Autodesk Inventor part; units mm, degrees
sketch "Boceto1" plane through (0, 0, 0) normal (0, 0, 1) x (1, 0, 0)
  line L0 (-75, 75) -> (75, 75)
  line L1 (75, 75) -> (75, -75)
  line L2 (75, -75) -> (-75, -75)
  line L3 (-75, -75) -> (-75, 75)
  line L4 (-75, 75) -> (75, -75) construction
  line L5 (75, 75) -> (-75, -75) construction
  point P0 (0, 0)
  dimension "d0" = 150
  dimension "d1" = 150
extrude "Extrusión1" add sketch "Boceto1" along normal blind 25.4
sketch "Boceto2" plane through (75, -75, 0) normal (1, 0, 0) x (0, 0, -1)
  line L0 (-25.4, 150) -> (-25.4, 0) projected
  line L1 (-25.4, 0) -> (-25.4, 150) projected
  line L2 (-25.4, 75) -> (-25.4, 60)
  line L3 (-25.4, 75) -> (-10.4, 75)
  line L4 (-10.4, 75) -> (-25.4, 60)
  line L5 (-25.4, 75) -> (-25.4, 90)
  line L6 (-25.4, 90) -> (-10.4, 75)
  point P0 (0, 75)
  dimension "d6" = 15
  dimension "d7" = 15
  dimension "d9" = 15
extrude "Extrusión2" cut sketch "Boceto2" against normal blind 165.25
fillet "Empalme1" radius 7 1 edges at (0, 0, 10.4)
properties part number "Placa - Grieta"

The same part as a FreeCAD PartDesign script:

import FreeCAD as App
import Part
import Sketcher
from FreeCAD import Vector
Q = App.Units.Quantity


def edges_at(feature, points):
    """Names of the edges that pass closest to the given points."""
    edges = feature.Shape.Edges
    near = lambda p: min(range(len(edges)), key=lambda i: edges[i].distToShape(Part.Vertex(*p))[0])
    return sorted({f"Edge{near(p) + 1}" for p in points})

doc = App.newDocument("Part")
body = doc.addObject("PartDesign::Body", "Body")

# Sketch on XY plane
sketch1 = body.newObject("Sketcher::SketchObject", "Sketch")
sketch1.AttachmentSupport = (doc.getObject("XY_Plane"), [""])
sketch1.MapMode = "FlatFace"
sketch1.addGeometry([
    Part.LineSegment(Vector(75, 75, 0), Vector(-75, 75, 0)),
    Part.LineSegment(Vector(-75, 75, 0), Vector(-75, -75, 0)),
    Part.LineSegment(Vector(-75, -75, 0), Vector(75, -75, 0)),
    Part.LineSegment(Vector(75, -75, 0), Vector(75, 75, 0)),
], False)
sketch1.addConstraint([
    Sketcher.Constraint("Coincident", 0, 2, 1, 1),
    Sketcher.Constraint("Coincident", 1, 2, 2, 1),
    Sketcher.Constraint("Coincident", 2, 2, 3, 1),
    Sketcher.Constraint("Coincident", 3, 2, 0, 1),
    Sketcher.Constraint("Horizontal", 0),
    Sketcher.Constraint("Vertical", 1),
    Sketcher.Constraint("Horizontal", 2),
    Sketcher.Constraint("Vertical", 3),
    Sketcher.Constraint("Symmetric", 0, 2, 2, 2, -1, 1),
    Sketcher.Constraint("Equal", 2, 1),
    Sketcher.Constraint("DistanceX", 0, 2, 0, 1, Q("5.9055 in")),
])
pad1 = body.newObject("PartDesign::Pad", "Pad")
pad1.Profile = sketch1
pad1.Length = Q("1 in")

# Sketch on YZ plane
sketch2 = body.newObject("Sketcher::SketchObject", "Sketch001")
sketch2.AttachmentSupport = (doc.getObject("YZ_Plane"), [""])
sketch2.MapMode = "FlatFace"
sketch2.AttachmentOffset = App.Placement(Vector(0, 0, 75), App.Rotation())
sketch2.addGeometry([
    Part.LineSegment(Vector(0, 10, 0), Vector(15, 25, 0)),
    Part.LineSegment(Vector(15, 25, 0), Vector(-15, 25, 0)),
    Part.LineSegment(Vector(-15, 25, 0), Vector(0, 10, 0)),
], False)
sketch2.addConstraint([
    Sketcher.Constraint("Coincident", 0, 2, 1, 1),
    Sketcher.Constraint("Coincident", 1, 2, 2, 1),
    Sketcher.Constraint("Coincident", 2, 2, 0, 1),
    Sketcher.Constraint("Horizontal", 1),
    Sketcher.Constraint("PointOnObject", 2, 2, -2),
    Sketcher.Constraint("Perpendicular", 0, 2),
    Sketcher.Constraint("Equal", 0, 2),
    Sketcher.Constraint("DistanceY", -1, 1, 0, 2, Q("1 in")),
    Sketcher.Constraint("DistanceX", -1, 1, 0, 2, 15.0),
])
pocket1 = body.newObject("PartDesign::Pocket", "Pocket")
pocket1.Profile = sketch2
pocket1.Length = Q("6.5059055 in")
doc.recompute()

fillet = body.newObject("PartDesign::Fillet", "Fillet")
fillet.Base = (pocket1, edges_at(pocket1, [(0, 0, 10.4)]))
fillet.Radius = Q("0.2755906 in")

doc.recompute()
